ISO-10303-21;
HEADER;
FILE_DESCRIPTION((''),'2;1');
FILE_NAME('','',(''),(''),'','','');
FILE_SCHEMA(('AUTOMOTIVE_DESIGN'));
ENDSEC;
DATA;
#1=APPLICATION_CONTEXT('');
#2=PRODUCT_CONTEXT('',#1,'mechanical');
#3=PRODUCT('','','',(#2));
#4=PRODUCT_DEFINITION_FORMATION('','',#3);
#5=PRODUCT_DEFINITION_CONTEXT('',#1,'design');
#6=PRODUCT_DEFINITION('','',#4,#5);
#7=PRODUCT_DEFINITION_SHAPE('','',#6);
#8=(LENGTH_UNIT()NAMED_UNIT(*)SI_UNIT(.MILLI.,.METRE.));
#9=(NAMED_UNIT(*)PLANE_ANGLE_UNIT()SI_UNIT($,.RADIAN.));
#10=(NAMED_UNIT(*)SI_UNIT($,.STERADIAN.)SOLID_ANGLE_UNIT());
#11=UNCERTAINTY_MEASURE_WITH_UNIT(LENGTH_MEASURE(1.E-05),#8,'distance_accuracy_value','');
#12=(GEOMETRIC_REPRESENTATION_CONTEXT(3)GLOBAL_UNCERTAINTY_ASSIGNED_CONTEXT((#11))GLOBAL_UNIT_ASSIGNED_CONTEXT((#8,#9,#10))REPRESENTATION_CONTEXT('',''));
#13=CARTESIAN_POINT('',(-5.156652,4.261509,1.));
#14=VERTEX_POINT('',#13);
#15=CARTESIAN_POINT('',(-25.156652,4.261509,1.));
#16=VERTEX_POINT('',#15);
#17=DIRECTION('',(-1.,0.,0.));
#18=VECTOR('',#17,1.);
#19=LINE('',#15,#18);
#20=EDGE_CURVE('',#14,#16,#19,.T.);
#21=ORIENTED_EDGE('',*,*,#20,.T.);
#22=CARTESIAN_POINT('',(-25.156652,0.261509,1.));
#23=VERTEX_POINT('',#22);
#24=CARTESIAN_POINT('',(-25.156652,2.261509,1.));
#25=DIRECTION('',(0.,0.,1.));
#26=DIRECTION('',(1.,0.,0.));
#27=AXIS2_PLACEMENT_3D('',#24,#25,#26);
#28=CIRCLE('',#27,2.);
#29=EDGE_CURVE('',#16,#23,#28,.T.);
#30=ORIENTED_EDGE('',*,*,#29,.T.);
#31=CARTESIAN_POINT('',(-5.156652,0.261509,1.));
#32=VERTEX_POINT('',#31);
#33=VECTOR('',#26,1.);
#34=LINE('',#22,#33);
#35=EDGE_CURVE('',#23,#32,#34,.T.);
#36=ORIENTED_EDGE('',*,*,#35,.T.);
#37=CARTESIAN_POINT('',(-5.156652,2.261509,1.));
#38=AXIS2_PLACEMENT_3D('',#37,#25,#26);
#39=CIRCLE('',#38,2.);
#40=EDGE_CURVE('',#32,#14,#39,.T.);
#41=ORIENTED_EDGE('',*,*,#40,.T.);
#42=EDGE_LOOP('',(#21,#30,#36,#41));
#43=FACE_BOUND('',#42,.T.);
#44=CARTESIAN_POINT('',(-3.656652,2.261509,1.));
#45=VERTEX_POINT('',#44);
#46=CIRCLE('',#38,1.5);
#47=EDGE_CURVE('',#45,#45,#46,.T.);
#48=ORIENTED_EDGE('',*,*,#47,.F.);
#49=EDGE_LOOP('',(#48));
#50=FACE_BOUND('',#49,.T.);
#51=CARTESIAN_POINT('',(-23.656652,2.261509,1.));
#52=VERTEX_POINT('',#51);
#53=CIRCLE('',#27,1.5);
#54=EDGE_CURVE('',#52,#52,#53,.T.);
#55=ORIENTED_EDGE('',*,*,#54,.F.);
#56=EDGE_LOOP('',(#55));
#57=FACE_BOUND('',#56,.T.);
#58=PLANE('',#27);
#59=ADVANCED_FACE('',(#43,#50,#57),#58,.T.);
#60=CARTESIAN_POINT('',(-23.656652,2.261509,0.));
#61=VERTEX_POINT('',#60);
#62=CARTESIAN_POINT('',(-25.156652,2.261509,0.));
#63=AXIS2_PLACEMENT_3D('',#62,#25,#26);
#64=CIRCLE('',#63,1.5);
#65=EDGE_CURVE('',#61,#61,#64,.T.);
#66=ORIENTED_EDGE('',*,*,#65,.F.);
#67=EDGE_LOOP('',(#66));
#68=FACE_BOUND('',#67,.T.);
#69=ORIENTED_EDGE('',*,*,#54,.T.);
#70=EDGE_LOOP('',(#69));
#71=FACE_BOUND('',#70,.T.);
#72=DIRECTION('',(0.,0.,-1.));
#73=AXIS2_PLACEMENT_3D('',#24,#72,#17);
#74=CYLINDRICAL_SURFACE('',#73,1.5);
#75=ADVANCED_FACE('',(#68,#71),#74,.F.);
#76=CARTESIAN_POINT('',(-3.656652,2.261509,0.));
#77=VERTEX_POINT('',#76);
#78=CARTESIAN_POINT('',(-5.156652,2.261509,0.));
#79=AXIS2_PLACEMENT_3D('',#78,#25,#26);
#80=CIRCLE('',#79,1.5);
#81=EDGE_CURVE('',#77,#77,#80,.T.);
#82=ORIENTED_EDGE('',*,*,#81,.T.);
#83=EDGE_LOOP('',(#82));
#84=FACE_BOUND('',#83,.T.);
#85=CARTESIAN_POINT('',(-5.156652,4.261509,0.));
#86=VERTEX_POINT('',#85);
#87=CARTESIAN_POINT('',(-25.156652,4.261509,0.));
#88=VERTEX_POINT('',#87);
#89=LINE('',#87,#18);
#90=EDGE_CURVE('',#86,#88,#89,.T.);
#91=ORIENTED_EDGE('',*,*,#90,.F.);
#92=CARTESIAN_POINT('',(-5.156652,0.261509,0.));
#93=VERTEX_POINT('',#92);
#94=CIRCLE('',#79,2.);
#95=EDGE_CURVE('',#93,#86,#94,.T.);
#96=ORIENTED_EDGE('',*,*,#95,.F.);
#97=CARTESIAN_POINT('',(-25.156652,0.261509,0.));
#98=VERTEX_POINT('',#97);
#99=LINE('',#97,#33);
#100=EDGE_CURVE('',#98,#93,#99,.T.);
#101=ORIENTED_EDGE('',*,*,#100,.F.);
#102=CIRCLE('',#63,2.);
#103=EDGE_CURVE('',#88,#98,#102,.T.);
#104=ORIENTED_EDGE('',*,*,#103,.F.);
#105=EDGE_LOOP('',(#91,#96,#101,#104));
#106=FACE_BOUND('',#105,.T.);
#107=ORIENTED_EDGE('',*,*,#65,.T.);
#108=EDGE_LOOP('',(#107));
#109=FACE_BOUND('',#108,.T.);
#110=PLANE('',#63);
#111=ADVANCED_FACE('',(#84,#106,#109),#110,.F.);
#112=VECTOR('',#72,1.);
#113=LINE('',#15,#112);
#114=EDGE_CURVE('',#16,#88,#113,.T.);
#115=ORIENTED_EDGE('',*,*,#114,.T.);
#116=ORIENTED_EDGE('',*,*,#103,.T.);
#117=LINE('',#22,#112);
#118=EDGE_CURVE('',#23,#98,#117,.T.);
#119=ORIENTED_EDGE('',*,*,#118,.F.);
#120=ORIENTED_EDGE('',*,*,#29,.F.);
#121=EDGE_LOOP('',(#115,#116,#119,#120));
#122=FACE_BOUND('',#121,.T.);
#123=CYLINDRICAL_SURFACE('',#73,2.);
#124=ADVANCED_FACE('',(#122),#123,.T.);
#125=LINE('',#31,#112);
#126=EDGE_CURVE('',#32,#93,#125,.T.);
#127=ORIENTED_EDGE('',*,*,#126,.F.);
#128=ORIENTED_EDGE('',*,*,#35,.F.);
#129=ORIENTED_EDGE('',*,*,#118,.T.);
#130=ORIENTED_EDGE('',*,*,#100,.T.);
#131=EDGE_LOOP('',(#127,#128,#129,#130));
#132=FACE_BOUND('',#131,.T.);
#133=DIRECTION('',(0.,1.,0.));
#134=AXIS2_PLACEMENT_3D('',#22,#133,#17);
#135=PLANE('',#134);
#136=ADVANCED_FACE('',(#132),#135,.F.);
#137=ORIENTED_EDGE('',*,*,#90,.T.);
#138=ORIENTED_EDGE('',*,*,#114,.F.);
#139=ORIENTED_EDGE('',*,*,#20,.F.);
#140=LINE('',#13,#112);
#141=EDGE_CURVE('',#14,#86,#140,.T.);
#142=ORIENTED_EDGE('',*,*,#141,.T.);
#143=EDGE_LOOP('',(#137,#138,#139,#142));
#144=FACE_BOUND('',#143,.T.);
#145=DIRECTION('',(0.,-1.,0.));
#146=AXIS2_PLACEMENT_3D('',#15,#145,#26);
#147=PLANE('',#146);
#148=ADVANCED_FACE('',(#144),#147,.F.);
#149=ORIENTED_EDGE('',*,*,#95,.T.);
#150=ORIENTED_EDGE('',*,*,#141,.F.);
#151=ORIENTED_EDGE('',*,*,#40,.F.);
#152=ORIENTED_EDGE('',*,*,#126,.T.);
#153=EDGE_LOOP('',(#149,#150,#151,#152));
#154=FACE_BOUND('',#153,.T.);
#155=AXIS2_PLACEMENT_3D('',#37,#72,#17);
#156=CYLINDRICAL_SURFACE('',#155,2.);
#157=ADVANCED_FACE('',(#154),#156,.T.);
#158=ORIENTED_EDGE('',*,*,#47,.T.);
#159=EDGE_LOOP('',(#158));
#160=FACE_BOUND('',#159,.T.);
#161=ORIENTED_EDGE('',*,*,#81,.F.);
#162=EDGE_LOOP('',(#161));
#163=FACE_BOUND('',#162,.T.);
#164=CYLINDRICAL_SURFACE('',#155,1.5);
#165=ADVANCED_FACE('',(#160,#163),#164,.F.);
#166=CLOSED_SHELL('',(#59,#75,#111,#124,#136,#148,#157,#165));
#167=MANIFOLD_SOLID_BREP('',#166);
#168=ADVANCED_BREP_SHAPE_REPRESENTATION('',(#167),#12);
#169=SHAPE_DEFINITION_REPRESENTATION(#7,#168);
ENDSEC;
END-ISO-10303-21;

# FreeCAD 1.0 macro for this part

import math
import FreeCAD as App
import Part
import Sketcher

doc = App.newDocument("Part")
body = doc.addObject("PartDesign::Body", "Body")

sketch1 = body.newObject("Sketcher::SketchObject", "Sketch")
sketch1.AttachmentSupport = (doc.getObject("XY_Plane"), [""])
sketch1.MapMode = "FlatFace"
sketch1.addGeometry([
    Part.LineSegment(App.Vector(-5.2, 4.3, 0), App.Vector(-25.2, 4.3, 0)),
    Part.ArcOfCircle(Part.Circle(App.Vector(-25.2, 2.3, 0), App.Vector(0, 0, 1), 2), math.radians(90), math.radians(270)),
    Part.LineSegment(App.Vector(-25.2, 0.3, 0), App.Vector(-5.2, 0.3, 0)),
    Part.ArcOfCircle(Part.Circle(App.Vector(-5.2, 2.3, 0), App.Vector(0, 0, 1), 2), math.radians(-90), math.radians(90)),
    Part.Circle(App.Vector(-5.2, 2.3, 0), App.Vector(0, 0, 1), 1.5),
    Part.Circle(App.Vector(-25.2, 2.3, 0), App.Vector(0, 0, 1), 1.5),
], False)
sketch1.addConstraint([
    Sketcher.Constraint("Tangent", 0, 2, 1, 1),
    Sketcher.Constraint("Tangent", 1, 2, 2, 1),
    Sketcher.Constraint("Tangent", 2, 2, 3, 1),
    Sketcher.Constraint("Tangent", 3, 2, 0, 1),
    Sketcher.Constraint("Horizontal", 0),
    Sketcher.Constraint("Horizontal", 2),
    Sketcher.Constraint("Coincident", 4, 3, 3, 3),
    Sketcher.Constraint("Coincident", 5, 3, 1, 3),
    Sketcher.Constraint("Equal", 4, 5),
    Sketcher.Constraint("Diameter", 4, 3.0),
    Sketcher.Constraint("Radius", 1, 2.0),
    Sketcher.Constraint("DistanceX", 0, 2, 0, 1, 20.0),
    Sketcher.Constraint("DistanceY", -1, 1, 1, 3, 2.261509),
    Sketcher.Constraint("DistanceX", 1, 3, -1, 1, 25.156652),
])
pad1 = body.newObject("PartDesign::Pad", "Pad")
pad1.Profile = sketch1
pad1.Length = 1

doc.recompute()
